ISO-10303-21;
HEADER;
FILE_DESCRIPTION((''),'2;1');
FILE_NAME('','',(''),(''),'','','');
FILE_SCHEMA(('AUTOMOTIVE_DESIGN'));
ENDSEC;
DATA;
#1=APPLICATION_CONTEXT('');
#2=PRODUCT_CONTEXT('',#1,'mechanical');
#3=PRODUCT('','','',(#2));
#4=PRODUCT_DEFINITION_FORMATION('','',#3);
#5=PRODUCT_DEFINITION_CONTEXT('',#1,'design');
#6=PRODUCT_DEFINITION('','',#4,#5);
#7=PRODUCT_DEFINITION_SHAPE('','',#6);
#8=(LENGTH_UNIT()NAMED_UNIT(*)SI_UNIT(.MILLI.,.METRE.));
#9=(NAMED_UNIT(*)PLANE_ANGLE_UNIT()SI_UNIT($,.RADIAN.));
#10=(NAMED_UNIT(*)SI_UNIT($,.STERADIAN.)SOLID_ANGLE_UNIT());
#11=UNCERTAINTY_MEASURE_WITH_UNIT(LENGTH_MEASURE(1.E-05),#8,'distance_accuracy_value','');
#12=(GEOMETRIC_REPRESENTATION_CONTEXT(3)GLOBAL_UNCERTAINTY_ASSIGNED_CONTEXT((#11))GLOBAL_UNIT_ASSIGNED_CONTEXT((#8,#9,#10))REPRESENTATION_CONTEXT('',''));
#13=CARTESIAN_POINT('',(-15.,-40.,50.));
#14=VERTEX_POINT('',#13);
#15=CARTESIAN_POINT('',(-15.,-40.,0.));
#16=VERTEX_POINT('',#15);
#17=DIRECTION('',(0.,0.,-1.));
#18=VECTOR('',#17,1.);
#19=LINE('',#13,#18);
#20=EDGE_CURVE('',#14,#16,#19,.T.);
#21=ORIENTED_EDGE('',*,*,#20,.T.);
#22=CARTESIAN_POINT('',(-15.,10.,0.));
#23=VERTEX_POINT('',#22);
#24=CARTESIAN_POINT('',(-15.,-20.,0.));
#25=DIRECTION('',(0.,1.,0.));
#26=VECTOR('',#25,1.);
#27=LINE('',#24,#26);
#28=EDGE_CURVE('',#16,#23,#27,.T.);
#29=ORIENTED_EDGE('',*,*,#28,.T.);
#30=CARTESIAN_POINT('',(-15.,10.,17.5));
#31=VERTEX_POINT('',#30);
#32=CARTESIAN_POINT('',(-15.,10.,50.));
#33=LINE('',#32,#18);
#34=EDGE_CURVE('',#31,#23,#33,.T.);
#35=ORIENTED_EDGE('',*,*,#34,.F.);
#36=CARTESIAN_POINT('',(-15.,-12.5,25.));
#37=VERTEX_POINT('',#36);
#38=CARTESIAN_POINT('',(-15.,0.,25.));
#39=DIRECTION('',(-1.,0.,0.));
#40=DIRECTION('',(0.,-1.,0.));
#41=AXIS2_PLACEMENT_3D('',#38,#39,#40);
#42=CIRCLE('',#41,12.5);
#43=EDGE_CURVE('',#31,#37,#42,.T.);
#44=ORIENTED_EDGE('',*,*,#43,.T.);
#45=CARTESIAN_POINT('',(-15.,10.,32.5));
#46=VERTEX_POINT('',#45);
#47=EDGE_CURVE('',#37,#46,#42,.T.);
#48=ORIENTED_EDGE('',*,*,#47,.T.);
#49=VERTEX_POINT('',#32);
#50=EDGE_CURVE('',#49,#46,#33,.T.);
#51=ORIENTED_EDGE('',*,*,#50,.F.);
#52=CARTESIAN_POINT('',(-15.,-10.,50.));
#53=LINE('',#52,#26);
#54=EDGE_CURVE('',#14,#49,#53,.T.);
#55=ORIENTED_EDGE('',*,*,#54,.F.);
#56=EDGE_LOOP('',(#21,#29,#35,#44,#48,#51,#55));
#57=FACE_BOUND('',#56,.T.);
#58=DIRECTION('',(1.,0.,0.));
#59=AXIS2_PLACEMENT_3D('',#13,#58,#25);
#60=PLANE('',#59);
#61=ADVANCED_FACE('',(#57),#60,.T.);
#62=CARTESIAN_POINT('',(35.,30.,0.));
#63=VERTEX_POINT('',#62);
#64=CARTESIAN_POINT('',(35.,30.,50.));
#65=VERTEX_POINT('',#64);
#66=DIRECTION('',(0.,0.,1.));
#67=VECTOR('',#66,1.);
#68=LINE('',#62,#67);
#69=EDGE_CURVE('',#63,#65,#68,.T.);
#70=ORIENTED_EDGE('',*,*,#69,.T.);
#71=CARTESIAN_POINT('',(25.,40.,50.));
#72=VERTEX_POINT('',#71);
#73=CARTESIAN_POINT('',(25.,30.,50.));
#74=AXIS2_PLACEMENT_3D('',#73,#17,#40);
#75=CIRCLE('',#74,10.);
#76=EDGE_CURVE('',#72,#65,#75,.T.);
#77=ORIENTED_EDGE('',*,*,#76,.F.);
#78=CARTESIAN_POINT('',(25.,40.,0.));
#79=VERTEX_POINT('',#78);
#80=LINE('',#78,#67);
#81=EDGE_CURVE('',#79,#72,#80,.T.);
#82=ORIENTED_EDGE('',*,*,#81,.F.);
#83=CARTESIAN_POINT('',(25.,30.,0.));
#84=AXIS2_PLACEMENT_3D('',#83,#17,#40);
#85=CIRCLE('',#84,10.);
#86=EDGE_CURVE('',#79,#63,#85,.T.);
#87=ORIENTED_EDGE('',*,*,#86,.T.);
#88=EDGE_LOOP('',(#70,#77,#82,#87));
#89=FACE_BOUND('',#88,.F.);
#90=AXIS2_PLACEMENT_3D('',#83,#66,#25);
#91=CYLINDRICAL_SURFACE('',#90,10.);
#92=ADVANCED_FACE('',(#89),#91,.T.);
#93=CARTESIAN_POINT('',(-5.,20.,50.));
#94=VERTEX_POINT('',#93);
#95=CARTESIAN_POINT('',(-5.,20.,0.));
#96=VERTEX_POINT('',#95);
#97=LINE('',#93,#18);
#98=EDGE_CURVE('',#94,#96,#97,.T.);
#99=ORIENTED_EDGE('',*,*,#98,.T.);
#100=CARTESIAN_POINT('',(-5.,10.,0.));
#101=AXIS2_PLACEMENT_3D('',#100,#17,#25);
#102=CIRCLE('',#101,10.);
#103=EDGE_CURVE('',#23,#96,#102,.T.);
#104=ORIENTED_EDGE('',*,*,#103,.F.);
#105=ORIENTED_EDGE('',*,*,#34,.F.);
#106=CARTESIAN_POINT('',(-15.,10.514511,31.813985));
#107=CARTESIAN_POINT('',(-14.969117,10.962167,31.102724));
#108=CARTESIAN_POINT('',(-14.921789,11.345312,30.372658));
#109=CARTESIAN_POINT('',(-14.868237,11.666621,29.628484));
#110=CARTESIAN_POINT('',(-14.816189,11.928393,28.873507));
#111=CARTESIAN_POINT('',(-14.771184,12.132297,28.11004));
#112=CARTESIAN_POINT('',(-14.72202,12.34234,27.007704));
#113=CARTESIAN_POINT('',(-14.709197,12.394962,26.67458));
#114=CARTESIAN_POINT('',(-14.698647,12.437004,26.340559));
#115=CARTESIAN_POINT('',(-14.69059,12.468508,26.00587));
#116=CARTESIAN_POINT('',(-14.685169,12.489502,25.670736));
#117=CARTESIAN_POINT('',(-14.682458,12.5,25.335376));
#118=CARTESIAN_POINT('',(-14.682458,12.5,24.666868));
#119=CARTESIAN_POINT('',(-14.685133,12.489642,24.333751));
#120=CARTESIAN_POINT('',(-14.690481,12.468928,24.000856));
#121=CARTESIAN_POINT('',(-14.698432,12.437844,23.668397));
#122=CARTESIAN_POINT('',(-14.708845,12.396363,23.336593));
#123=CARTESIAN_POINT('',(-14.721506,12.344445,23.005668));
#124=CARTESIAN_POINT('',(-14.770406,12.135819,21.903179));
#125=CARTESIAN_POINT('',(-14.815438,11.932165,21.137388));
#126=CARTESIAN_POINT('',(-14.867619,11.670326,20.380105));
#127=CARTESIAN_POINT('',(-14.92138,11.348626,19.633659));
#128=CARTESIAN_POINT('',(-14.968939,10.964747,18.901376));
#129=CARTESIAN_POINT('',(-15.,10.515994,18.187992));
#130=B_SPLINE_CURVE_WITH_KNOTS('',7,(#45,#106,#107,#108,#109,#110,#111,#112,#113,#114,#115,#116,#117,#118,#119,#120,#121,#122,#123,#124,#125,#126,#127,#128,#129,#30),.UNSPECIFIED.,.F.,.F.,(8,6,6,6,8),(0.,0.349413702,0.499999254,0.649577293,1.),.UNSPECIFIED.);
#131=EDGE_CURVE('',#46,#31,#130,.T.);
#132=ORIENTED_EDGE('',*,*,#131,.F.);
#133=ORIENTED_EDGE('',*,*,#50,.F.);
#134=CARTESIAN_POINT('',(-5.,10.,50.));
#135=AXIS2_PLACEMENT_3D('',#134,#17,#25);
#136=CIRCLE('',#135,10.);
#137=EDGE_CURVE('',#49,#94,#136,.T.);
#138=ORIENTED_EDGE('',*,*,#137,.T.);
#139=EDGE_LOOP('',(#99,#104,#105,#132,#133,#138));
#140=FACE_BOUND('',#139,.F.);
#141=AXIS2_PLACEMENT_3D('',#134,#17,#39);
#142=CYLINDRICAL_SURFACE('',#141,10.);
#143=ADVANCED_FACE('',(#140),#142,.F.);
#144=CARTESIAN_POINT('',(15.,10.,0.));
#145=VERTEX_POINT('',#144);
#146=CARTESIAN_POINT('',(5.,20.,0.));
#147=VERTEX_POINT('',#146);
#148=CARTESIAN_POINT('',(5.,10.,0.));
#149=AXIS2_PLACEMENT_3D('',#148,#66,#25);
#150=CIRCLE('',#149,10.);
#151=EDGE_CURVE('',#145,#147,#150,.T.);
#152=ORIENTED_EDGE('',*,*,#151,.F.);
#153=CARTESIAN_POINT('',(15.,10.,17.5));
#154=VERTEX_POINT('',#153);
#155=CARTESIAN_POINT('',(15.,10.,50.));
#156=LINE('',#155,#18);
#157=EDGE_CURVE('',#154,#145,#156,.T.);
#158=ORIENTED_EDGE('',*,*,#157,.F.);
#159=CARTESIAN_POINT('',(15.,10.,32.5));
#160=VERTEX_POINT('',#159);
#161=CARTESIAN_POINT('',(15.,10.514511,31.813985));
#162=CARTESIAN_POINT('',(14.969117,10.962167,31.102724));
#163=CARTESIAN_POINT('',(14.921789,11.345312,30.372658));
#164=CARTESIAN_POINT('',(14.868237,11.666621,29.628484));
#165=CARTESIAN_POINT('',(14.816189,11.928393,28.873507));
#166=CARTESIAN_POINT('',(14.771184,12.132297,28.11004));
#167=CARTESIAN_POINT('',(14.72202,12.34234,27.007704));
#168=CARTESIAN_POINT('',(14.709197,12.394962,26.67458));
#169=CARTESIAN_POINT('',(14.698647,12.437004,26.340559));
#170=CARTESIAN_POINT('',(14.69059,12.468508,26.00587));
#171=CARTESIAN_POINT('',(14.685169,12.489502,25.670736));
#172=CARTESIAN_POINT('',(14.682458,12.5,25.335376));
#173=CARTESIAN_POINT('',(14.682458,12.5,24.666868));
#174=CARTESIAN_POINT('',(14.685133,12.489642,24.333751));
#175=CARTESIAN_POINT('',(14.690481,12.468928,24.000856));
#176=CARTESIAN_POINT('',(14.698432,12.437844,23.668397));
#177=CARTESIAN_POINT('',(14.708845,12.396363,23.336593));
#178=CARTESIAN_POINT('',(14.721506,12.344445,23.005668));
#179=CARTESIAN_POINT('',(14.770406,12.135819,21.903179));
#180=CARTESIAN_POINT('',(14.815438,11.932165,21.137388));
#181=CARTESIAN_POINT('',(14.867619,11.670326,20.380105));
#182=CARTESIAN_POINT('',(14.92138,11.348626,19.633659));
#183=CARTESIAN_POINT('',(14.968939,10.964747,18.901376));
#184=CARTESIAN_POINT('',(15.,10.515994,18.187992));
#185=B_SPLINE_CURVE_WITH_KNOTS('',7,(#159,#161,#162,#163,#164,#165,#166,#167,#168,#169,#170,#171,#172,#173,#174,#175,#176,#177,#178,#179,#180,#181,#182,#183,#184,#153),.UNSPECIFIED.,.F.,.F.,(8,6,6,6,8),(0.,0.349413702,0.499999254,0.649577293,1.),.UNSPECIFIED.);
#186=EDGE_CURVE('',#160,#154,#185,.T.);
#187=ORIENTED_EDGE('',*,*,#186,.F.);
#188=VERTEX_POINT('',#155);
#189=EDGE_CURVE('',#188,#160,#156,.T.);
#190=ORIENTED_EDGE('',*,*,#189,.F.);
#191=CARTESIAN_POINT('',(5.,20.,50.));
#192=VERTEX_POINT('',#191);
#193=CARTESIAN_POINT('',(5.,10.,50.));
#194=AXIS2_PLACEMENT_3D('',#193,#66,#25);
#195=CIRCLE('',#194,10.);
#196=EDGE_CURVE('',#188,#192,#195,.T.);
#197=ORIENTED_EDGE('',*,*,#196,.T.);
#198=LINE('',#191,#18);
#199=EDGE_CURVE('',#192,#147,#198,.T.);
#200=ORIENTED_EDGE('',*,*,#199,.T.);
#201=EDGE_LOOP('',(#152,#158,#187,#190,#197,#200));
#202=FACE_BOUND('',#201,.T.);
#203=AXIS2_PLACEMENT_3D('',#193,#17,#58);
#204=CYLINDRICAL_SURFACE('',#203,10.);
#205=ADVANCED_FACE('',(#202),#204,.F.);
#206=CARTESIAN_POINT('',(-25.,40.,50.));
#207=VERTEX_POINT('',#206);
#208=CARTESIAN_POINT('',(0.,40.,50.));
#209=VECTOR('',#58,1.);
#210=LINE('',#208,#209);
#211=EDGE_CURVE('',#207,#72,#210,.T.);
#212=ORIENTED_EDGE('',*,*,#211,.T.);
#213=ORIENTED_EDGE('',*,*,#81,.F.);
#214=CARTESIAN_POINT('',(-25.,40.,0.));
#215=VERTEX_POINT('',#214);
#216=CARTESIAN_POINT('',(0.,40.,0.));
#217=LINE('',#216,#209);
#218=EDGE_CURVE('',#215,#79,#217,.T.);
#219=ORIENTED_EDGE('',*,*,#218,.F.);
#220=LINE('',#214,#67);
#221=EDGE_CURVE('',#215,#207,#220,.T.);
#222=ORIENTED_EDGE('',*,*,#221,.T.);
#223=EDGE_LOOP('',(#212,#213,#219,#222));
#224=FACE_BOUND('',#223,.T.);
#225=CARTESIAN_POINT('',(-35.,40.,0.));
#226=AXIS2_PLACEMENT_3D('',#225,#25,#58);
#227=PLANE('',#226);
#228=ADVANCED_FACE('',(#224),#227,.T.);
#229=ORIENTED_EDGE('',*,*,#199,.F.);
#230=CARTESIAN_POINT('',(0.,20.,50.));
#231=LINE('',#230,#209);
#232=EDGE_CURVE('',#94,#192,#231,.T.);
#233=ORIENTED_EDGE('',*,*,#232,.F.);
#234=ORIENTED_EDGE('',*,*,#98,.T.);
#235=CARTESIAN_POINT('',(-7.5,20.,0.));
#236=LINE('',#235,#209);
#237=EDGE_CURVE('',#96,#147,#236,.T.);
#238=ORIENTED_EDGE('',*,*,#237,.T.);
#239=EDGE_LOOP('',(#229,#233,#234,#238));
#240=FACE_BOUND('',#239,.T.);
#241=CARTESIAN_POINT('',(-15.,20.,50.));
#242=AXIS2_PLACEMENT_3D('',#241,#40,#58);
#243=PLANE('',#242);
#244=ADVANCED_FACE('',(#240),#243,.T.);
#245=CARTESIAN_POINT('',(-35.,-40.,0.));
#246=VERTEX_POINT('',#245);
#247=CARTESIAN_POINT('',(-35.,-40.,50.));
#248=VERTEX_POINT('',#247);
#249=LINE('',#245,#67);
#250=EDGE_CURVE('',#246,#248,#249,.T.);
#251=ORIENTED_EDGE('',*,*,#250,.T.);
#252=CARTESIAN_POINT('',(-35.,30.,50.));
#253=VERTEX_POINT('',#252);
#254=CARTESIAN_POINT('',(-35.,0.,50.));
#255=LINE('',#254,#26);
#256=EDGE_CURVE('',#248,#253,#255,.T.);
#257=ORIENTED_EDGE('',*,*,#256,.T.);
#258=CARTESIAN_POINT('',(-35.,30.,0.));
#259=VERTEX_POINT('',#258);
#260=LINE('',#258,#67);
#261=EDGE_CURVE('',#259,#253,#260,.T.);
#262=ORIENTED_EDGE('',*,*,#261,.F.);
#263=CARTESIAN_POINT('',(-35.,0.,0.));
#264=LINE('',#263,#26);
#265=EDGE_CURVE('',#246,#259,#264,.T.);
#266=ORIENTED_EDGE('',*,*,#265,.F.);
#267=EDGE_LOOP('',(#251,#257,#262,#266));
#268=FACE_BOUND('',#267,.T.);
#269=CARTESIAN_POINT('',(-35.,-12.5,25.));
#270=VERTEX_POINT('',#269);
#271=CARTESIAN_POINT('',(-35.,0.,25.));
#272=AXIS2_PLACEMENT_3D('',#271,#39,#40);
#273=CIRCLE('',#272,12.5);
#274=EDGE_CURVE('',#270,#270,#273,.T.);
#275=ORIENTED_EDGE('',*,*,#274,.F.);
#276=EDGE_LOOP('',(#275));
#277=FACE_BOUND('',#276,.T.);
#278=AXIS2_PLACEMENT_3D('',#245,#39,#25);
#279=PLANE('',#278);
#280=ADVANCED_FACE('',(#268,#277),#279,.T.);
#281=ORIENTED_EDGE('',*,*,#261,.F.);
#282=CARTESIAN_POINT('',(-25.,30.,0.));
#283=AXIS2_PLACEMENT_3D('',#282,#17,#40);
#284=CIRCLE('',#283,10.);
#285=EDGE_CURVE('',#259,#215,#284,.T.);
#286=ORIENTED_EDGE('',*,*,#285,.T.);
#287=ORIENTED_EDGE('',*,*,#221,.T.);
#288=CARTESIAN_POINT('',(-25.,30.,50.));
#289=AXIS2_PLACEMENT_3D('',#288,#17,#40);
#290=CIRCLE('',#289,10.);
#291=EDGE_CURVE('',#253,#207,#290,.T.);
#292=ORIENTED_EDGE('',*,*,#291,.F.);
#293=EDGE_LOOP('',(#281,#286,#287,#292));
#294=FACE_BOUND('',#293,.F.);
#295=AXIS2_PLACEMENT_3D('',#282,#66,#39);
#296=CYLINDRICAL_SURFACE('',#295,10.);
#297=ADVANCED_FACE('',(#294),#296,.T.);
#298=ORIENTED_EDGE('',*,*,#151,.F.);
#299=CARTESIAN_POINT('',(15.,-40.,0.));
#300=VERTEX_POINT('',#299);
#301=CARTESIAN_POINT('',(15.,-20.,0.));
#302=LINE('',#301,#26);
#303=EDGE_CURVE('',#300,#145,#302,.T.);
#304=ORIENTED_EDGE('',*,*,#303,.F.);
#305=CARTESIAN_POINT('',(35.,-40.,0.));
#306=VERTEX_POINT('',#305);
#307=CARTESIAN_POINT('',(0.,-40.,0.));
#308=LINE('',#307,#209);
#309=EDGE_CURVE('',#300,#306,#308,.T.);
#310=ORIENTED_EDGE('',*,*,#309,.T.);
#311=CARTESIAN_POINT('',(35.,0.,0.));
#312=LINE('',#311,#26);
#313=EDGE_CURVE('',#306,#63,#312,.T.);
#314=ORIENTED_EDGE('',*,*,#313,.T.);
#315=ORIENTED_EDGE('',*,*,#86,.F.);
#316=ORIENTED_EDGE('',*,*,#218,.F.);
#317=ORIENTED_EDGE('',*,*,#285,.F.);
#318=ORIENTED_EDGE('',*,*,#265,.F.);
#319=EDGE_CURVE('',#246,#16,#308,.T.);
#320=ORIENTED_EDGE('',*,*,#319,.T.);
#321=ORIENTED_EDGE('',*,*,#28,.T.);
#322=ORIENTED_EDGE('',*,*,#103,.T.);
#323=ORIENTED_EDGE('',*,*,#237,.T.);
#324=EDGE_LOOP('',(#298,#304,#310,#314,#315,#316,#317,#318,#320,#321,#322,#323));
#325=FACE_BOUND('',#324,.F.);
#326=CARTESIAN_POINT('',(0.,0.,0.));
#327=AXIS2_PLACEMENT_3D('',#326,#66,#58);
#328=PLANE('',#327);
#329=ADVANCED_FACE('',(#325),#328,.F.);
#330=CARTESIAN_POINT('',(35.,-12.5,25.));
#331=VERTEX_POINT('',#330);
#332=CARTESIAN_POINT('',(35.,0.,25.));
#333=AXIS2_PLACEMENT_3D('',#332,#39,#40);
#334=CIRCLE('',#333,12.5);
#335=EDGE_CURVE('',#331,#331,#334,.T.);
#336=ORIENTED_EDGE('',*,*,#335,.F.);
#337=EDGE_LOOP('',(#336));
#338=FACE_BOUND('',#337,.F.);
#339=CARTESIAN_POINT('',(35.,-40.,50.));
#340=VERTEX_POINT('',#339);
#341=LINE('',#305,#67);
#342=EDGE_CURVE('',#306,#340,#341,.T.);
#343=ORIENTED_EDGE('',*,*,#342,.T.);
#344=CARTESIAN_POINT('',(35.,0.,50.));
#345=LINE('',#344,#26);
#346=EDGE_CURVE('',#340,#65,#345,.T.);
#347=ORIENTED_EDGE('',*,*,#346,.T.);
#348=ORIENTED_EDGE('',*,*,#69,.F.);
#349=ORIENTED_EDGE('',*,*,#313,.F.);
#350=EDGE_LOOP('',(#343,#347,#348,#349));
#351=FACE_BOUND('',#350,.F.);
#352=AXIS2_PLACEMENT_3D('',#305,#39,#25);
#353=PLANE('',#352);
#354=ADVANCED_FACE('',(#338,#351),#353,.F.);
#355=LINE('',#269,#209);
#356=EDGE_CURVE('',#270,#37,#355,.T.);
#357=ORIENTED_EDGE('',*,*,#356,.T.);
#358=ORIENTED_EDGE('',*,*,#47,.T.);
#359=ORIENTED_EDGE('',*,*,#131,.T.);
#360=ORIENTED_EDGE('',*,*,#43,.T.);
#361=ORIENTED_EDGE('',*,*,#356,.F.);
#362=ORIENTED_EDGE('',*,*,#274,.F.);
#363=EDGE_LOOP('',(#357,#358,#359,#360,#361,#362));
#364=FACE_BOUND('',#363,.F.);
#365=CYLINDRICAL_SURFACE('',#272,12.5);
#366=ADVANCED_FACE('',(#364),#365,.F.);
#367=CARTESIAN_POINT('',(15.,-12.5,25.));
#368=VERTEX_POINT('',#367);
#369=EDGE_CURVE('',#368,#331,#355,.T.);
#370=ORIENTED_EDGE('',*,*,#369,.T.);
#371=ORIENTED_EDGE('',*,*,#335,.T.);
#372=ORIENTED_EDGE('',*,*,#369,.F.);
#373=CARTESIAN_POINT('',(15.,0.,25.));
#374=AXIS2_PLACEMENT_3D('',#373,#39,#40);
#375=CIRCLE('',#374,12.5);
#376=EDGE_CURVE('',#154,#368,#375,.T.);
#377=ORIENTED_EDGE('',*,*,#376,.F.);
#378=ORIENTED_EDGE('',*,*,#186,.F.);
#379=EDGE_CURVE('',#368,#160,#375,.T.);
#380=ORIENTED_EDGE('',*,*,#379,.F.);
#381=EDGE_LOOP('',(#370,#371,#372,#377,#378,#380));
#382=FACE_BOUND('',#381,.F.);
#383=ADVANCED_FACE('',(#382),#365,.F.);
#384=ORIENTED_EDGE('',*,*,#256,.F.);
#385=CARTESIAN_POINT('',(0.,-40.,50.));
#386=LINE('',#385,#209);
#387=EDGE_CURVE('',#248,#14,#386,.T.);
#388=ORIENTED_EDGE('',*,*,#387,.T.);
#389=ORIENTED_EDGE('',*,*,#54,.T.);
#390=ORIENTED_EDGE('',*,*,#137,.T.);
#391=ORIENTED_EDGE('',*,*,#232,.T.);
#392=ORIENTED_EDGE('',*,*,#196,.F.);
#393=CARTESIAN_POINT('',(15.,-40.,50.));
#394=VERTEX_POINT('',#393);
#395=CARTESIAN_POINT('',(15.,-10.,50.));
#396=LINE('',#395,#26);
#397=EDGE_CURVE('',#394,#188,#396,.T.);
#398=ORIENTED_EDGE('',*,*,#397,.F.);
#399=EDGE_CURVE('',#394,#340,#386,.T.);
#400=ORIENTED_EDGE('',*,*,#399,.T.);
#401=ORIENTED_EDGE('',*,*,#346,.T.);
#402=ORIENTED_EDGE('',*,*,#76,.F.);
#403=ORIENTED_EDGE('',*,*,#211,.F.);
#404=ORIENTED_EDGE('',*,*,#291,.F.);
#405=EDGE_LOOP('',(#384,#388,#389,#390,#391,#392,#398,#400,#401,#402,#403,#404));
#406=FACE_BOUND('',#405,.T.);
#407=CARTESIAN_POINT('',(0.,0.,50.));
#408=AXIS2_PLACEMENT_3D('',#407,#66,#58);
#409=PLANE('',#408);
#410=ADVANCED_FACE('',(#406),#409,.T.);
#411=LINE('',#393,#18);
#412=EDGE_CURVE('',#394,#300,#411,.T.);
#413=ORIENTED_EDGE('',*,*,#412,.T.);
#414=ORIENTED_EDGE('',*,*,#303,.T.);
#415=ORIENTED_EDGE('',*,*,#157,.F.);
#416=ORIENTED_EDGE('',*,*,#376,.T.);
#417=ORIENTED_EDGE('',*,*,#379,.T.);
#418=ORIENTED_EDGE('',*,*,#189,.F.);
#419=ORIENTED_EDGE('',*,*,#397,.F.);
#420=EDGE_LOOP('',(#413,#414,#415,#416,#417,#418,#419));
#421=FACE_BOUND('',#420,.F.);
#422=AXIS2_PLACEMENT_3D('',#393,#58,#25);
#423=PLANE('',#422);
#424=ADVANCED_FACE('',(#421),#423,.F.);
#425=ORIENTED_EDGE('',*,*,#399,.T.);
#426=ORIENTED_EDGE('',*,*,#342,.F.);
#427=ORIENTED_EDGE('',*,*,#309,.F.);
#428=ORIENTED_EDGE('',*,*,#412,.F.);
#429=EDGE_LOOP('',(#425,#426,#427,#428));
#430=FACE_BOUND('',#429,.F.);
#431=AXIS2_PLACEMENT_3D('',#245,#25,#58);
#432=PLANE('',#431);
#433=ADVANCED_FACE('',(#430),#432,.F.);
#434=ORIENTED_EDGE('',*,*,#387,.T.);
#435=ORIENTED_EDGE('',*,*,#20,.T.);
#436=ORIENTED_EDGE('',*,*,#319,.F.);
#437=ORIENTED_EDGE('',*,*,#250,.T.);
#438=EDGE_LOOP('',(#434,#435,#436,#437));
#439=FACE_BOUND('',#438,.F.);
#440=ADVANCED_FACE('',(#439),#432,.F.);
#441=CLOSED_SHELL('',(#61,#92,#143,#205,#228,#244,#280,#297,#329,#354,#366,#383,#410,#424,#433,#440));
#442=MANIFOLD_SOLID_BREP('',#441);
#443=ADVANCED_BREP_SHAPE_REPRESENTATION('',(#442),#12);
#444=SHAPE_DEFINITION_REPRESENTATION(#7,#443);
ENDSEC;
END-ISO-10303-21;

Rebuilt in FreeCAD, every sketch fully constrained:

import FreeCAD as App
import Part
import Sketcher
from FreeCAD import Vector


def edges_at(feature, points):
    """Names of the edges that pass closest to the given points."""
    edges = feature.Shape.Edges
    near = lambda p: min(range(len(edges)), key=lambda i: edges[i].distToShape(Part.Vertex(*p))[0])
    return sorted({f"Edge{near(p) + 1}" for p in points})


def add_polygon(sketch, points):
    """Adds a closed chain of lines whose ends are joined by coincident constraints."""
    first, n = sketch.GeometryCount, len(points)
    for a, b in zip(points, points[1:] + points[:1]):
        sketch.addGeometry(Part.LineSegment(App.Vector(*a, 0), App.Vector(*b, 0)), False)
    for i in range(n):
        sketch.addConstraint(Sketcher.Constraint("Coincident", first + i, 2, first + (i + 1) % n, 1))

doc = App.newDocument("Part")
body = doc.addObject("PartDesign::Body", "Body")

sketch1 = body.newObject("Sketcher::SketchObject", "Sketch")
sketch1.AttachmentSupport = (doc.getObject("XY_Plane"), [""])
sketch1.MapMode = "FlatFace"
add_polygon(sketch1, [(-35, 40), (-35, -40), (35, -40), (35, 40)])
sketch1.addConstraint(Sketcher.Constraint("Vertical", 0))
sketch1.addConstraint(Sketcher.Constraint("Horizontal", 1))
sketch1.addConstraint(Sketcher.Constraint("Vertical", 2))
sketch1.addConstraint(Sketcher.Constraint("Horizontal", 3))
sketch1.addConstraint(Sketcher.Constraint("Symmetric", 0, 2, 2, 2, -1, 1))
sketch1.addConstraint(Sketcher.Constraint("DistanceX", 1, 1, 1, 2, 70.0))
sketch1.addConstraint(Sketcher.Constraint("DistanceY", 0, 2, 0, 1, 80.0))
pad1 = body.newObject("PartDesign::Pad", "Pad")
pad1.Profile = sketch1
pad1.Length = 50

sketch2 = body.newObject("Sketcher::SketchObject", "Sketch001")
sketch2.AttachmentSupport = (doc.getObject("XY_Plane"), [""])
sketch2.MapMode = "FlatFace"
sketch2.AttachmentOffset = App.Placement(Vector(0, 0, 50), App.Rotation())
add_polygon(sketch2, [(-15, 20), (-15, -40), (15, -40), (15, 20)])
sketch2.addConstraint(Sketcher.Constraint("Vertical", 0))
sketch2.addConstraint(Sketcher.Constraint("Horizontal", 1))
sketch2.addConstraint(Sketcher.Constraint("Vertical", 2))
sketch2.addConstraint(Sketcher.Constraint("Horizontal", 3))
sketch2.addConstraint(Sketcher.Constraint("DistanceX", 1, 1, 1, 2, 30.0))
sketch2.addConstraint(Sketcher.Constraint("DistanceY", 0, 2, 0, 1, 60.0))
sketch2.addConstraint(Sketcher.Constraint("DistanceX", 0, 2, -1, 1, 15.0))
sketch2.addConstraint(Sketcher.Constraint("DistanceY", 0, 2, -1, 1, 40.0))
pocket1 = body.newObject("PartDesign::Pocket", "Pocket")
pocket1.Profile = sketch2
pocket1.Length = 64
doc.recompute()

fillet = body.newObject("PartDesign::Fillet", "Fillet")
fillet.Base = (pocket1, edges_at(pocket1, [
    (35, 40, 25),
    (-35, 40, 25),
    (-15, 20, 25),
    (15, 20, 25),
]))
fillet.Radius = 10

sketch3 = body.newObject("Sketcher::SketchObject", "Sketch002")
sketch3.AttachmentSupport = (doc.getObject("YZ_Plane"), [""])
sketch3.MapMode = "FlatFace"
sketch3.AttachmentOffset = App.Placement(Vector(0, 0, -35), App.Rotation())
sketch3.addGeometry(Part.Circle(Vector(0, 25, 0), Vector(0, 0, 1), 12), False)
sketch3.addConstraint(Sketcher.Constraint("PointOnObject", 0, 3, -2))
sketch3.addConstraint(Sketcher.Constraint("Diameter", 0, 25.0))
sketch3.addConstraint(Sketcher.Constraint("DistanceY", -1, 1, 0, 3, 25.0))
pocket2 = body.newObject("PartDesign::Pocket", "Pocket001")
pocket2.Profile = sketch3
pocket2.Length = 96.7
pocket2.Reversed = True

doc.recompute()
